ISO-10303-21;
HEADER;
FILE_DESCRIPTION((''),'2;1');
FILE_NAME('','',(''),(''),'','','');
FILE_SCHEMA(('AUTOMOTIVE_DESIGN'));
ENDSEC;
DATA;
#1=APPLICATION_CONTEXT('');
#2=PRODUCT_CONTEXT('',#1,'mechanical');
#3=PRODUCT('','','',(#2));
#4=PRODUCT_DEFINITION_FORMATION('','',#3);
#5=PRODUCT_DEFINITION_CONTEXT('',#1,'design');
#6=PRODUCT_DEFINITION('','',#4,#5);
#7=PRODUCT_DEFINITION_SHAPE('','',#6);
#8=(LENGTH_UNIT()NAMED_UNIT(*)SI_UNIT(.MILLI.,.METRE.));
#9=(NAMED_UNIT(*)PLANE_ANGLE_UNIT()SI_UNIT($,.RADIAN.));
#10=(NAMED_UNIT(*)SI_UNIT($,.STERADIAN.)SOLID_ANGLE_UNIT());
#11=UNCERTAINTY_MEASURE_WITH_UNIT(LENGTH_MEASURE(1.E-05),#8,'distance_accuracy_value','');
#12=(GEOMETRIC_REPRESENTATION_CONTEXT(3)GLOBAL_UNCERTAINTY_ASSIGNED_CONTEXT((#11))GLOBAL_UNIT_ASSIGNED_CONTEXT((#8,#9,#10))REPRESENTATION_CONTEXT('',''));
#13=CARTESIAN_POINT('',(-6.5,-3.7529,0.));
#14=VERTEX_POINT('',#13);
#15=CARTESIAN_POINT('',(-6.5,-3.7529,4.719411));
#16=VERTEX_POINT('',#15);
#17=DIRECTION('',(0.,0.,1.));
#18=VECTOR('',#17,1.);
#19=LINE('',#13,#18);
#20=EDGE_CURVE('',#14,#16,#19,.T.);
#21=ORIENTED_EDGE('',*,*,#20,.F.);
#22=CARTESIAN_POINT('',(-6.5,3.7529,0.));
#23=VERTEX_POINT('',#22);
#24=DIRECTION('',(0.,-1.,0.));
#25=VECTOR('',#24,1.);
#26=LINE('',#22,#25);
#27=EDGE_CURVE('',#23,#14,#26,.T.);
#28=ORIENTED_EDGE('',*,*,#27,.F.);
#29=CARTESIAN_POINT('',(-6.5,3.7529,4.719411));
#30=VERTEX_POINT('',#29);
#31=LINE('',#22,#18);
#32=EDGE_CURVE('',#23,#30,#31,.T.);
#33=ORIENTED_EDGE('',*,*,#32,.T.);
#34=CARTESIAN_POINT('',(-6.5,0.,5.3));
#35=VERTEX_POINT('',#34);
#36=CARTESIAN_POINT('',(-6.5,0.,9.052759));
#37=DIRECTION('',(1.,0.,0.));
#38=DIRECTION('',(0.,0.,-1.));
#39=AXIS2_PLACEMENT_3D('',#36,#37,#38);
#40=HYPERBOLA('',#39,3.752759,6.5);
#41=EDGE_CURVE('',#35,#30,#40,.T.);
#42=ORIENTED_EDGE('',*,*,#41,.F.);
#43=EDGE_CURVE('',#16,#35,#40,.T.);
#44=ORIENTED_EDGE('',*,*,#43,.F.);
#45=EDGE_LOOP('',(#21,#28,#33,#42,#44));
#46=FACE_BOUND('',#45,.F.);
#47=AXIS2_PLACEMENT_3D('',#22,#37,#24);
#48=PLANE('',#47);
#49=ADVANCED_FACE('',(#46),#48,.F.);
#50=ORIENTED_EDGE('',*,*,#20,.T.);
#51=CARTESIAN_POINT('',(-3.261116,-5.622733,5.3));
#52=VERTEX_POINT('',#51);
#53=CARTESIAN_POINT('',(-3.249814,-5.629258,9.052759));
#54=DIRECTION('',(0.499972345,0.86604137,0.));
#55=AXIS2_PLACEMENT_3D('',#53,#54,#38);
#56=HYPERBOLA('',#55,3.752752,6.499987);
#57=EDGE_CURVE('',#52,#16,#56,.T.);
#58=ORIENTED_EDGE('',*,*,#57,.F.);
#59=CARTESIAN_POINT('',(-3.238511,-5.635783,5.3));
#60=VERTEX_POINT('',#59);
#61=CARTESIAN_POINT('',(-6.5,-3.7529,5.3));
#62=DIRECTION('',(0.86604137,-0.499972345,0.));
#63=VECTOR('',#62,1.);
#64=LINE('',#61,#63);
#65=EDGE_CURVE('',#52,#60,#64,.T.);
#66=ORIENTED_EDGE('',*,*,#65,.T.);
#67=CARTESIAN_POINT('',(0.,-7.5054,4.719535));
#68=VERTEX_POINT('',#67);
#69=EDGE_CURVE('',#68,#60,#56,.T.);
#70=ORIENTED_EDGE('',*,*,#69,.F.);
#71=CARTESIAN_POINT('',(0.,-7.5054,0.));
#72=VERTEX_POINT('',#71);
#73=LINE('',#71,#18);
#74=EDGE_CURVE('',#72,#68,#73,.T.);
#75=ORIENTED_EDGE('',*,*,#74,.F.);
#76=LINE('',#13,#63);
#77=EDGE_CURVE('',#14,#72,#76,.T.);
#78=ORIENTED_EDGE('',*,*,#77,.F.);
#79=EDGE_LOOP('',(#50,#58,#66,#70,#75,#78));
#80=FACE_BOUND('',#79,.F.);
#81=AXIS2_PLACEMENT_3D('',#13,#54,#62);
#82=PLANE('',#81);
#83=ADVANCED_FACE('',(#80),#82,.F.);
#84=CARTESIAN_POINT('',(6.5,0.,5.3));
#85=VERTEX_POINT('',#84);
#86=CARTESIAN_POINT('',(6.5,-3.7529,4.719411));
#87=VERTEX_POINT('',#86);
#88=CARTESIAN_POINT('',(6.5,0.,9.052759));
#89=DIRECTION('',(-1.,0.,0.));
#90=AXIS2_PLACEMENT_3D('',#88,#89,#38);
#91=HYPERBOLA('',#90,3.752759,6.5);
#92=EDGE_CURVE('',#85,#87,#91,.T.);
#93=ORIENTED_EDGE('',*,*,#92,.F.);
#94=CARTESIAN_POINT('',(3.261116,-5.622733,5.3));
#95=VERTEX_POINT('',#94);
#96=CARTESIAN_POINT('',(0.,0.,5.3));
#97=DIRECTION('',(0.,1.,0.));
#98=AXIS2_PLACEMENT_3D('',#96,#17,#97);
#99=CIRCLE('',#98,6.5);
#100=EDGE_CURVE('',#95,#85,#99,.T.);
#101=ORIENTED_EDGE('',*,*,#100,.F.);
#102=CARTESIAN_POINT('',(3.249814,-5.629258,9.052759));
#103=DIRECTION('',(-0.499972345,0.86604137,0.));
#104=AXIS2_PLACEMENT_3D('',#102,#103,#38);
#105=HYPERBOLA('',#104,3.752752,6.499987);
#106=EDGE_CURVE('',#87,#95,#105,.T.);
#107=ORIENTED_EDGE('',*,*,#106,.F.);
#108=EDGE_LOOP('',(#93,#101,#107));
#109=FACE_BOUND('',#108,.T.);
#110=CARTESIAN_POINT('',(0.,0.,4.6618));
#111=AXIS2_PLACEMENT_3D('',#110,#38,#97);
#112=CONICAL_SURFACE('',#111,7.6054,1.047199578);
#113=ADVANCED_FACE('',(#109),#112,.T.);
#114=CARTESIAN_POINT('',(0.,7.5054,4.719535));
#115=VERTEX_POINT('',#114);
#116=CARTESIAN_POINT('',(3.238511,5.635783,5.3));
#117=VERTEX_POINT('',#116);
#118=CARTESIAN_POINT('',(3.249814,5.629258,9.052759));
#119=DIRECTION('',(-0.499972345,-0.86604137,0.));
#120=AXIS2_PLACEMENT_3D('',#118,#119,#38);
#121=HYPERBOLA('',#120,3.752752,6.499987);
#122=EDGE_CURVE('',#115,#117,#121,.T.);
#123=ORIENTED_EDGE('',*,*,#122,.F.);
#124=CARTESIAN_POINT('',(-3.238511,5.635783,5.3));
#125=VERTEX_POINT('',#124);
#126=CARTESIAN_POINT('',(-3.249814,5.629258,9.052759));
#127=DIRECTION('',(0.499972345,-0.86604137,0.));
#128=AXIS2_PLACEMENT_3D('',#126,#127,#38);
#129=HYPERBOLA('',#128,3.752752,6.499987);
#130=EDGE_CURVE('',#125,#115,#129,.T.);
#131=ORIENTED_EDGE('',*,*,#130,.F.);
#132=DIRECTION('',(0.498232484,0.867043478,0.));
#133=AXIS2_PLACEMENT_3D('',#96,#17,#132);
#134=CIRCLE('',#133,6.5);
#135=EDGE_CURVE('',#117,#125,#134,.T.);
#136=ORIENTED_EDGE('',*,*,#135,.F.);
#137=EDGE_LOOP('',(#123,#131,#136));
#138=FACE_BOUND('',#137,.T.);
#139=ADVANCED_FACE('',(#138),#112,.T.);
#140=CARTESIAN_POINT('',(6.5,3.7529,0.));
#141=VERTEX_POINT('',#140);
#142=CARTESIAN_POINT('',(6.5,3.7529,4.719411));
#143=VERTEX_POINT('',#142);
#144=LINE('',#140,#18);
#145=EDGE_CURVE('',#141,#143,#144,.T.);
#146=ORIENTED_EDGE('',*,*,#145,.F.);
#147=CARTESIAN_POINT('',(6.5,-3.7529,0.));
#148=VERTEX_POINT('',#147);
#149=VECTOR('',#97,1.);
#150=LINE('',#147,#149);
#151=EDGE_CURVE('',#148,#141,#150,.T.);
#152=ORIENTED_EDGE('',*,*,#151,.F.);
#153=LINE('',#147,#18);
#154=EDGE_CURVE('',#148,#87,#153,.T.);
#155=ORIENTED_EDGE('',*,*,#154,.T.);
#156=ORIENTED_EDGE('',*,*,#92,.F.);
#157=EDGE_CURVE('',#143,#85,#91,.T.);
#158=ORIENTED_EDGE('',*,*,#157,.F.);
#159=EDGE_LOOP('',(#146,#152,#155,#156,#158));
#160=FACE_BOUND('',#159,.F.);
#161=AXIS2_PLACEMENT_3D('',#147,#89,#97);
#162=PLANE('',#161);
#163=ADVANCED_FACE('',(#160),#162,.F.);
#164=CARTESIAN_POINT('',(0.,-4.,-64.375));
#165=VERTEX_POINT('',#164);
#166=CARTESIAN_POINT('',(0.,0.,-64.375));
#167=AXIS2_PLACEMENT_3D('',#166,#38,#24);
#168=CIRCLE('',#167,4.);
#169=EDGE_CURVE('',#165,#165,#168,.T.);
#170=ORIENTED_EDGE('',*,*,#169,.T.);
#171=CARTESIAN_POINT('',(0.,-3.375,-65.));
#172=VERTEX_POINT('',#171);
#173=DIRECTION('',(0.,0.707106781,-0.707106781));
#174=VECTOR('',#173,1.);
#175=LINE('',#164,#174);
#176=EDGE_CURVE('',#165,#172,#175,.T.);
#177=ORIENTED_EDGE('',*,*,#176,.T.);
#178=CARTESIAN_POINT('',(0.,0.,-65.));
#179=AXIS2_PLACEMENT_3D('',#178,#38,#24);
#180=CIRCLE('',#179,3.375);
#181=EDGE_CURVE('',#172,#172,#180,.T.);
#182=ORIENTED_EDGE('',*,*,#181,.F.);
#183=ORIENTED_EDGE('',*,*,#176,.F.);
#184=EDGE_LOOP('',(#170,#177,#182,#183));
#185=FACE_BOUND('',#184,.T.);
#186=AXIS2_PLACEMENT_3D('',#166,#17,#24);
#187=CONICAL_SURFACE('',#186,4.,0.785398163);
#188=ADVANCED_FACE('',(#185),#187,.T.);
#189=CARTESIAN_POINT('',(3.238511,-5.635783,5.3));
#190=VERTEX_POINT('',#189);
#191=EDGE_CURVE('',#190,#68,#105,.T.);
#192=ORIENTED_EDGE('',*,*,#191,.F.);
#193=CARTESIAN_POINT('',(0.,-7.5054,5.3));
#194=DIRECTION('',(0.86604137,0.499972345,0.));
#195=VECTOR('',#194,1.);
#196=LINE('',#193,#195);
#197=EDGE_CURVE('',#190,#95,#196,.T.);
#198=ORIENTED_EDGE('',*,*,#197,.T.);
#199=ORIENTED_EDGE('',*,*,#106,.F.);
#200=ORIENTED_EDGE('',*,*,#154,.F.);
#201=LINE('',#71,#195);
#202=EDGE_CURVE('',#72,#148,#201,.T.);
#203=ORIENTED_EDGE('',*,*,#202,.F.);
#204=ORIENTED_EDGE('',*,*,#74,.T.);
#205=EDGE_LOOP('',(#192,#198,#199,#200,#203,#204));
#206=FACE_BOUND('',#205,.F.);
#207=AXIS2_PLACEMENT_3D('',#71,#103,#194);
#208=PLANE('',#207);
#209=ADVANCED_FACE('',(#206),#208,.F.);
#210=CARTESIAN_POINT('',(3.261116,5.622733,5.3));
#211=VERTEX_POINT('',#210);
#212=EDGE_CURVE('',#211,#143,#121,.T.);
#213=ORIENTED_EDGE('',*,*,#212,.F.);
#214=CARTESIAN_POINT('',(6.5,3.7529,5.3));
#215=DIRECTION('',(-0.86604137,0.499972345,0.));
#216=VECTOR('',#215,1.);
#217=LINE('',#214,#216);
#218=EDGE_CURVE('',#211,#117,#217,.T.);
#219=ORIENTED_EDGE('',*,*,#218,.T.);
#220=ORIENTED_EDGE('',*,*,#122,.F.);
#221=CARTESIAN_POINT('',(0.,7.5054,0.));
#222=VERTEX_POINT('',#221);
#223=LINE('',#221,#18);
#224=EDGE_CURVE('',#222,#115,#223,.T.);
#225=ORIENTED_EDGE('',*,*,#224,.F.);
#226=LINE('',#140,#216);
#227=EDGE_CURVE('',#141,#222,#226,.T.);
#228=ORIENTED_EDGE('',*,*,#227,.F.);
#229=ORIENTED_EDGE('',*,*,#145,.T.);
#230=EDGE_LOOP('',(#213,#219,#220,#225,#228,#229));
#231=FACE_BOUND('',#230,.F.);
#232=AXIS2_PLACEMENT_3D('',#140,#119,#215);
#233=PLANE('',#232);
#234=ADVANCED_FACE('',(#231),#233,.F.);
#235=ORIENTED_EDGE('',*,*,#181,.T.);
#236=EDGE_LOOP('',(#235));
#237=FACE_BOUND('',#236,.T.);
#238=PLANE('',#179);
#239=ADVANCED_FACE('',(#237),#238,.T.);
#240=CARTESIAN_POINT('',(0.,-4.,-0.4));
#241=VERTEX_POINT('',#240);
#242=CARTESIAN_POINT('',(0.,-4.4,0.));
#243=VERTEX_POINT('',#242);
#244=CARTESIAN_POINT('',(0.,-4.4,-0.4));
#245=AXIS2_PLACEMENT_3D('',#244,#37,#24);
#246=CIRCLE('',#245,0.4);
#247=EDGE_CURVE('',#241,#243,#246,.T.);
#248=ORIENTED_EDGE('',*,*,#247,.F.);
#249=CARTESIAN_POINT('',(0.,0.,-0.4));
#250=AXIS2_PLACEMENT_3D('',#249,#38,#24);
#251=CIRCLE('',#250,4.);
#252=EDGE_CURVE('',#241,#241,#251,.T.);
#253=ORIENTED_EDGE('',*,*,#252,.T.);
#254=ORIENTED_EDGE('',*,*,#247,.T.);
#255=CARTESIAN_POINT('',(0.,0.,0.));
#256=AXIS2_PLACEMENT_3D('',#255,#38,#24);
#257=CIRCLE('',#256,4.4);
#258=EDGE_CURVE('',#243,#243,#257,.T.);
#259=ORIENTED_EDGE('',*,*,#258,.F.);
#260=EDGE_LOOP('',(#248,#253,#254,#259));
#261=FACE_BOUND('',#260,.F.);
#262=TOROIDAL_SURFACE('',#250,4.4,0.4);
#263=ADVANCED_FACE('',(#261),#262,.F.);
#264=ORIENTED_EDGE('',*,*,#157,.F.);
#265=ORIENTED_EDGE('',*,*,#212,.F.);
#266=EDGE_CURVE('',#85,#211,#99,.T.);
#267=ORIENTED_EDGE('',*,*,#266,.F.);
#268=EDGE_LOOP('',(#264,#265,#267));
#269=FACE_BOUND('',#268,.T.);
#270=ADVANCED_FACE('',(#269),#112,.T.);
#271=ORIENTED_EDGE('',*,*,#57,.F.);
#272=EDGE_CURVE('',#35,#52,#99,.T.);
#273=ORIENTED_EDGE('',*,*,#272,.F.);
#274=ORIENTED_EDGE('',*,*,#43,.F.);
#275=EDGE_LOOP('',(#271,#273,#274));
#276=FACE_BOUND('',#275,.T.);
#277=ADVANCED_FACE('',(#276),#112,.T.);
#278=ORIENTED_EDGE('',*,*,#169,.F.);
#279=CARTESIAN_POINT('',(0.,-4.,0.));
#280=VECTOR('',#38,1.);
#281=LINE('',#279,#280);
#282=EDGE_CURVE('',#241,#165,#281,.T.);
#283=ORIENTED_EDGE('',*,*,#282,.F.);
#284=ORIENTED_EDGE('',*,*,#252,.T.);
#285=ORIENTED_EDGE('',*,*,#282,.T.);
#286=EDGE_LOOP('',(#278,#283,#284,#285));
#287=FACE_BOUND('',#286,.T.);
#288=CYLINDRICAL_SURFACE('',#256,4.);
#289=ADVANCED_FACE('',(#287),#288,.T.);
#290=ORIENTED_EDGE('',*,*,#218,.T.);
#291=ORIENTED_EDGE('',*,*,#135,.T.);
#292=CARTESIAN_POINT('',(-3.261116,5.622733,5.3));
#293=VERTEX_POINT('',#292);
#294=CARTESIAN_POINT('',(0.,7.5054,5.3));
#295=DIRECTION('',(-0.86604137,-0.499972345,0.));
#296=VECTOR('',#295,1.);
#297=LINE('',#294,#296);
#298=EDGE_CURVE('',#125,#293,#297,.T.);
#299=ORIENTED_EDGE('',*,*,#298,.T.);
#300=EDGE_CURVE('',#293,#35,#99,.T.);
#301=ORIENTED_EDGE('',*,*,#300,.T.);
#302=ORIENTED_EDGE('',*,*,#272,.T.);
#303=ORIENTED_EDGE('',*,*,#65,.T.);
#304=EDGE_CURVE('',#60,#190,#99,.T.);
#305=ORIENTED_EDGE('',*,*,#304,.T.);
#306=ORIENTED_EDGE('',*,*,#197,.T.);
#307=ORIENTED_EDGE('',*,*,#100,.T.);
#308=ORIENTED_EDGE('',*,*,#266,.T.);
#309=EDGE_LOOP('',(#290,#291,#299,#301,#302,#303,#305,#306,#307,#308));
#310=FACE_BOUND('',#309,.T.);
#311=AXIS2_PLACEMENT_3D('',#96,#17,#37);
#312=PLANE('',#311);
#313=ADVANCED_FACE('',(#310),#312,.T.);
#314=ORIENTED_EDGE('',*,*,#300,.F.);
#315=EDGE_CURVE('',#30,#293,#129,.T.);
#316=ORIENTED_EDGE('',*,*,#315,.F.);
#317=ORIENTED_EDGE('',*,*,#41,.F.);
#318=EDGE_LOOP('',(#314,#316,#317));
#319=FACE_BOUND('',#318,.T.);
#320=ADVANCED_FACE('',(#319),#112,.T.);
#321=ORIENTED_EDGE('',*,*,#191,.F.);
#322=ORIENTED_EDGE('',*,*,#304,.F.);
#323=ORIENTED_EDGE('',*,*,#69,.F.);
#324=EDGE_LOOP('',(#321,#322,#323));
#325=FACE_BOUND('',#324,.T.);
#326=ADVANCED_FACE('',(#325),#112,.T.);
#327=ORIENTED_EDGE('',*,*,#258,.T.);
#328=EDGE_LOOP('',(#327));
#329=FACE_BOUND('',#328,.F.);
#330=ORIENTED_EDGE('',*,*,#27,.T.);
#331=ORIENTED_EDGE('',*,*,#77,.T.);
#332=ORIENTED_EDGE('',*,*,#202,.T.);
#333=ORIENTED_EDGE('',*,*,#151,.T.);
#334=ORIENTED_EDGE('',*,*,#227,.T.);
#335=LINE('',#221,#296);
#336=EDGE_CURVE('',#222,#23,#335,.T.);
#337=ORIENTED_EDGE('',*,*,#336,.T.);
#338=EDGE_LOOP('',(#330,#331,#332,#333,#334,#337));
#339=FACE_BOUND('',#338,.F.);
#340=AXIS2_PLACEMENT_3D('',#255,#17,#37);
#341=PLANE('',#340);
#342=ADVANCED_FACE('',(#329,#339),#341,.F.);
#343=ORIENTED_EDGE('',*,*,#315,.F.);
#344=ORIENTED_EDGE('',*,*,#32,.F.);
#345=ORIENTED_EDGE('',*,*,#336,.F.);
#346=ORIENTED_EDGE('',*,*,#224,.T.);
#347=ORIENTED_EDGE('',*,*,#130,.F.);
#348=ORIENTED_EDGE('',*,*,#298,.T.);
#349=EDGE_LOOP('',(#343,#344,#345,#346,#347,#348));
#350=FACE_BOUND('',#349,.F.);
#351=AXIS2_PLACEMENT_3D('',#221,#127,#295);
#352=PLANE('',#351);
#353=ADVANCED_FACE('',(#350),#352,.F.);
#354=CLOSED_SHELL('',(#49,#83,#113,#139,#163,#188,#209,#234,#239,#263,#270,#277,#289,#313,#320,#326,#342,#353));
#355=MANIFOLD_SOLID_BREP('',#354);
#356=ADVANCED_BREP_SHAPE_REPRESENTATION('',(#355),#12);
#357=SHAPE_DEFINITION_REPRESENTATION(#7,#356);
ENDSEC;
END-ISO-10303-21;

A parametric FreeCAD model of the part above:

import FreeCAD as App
import Part
import Sketcher
from FreeCAD import Vector
Q = App.Units.Quantity


def edges_at(feature, points):
    """Names of the edges that pass closest to the given points."""
    edges = feature.Shape.Edges
    near = lambda p: min(range(len(edges)), key=lambda i: edges[i].distToShape(Part.Vertex(*p))[0])
    return sorted({f"Edge{near(p) + 1}" for p in points})


def add_polygon(sketch, points):
    """Adds a closed chain of lines whose ends are joined by coincident constraints."""
    first, n = sketch.GeometryCount, len(points)
    for a, b in zip(points, points[1:] + points[:1]):
        sketch.addGeometry(Part.LineSegment(App.Vector(*a, 0), App.Vector(*b, 0)), False)
    for i in range(n):
        sketch.addConstraint(Sketcher.Constraint("Coincident", first + i, 2, first + (i + 1) % n, 1))

doc = App.newDocument("Part")
params = doc.addObject("Spreadsheet::Sheet", "Params")
for row, (alias, value) in enumerate([
    ("pad1_length", "5.3 mm"),
    ("groove_angle", "360 deg"),
    ("sketch3_width", "4 mm"),
    ("sketch3_height", "65 mm"),
    ("revolution_angle", "360 deg"),
    ("chamfer_size", "0.625 mm"),
    ("fillet_radius", "0.4 mm"),
], start=1):
    params.set(f"A{row}", alias)
    params.set(f"B{row}", "=" + value)
    params.setAlias(f"B{row}", alias)

body = doc.addObject("PartDesign::Body", "Body")

# Sketch on XY plane
sketch1 = doc.addObject("Sketcher::SketchObject", "Sketch")
body.addObject(sketch1)
sketch1.AttachmentSupport = (doc.XY_Plane, [""])
sketch1.MapMode = "FlatFace"
add_polygon(sketch1, [(0, 7.5054), (-6.5, 3.7529), (-6.5, -3.7529), (0, -7.5054), (6.5, -3.7529), (6.5, 3.7529)])  # lines 0-5
sketch1.addConstraint([
    Sketcher.Constraint("Vertical", 1),
    Sketcher.Constraint("Vertical", 4),
    Sketcher.Constraint("Symmetric", 0, 2, 3, 2, -1, 1),
    Sketcher.Constraint("Symmetric", 2, 2, 5, 2, -1, 1),
    Sketcher.Constraint("PointOnObject", 2, 2, -2),
    Sketcher.Constraint("Parallel", 2, 5),
    Sketcher.Constraint("Horizontal", 1, 2, 3, 2),
    Sketcher.Constraint("DistanceX", 1, 2, 3, 2, Q("13 mm")),
    Sketcher.Constraint("DistanceY", 1, 2, 1, 1, Q("7.5058 mm")),
    Sketcher.Constraint("Distance", 0, Q("7.5054 mm")),
])
pad1 = doc.addObject("PartDesign::Pad", "Pad")
body.addObject(pad1)
pad1.Profile = sketch1
pad1.setExpression("Length", "Params.pad1_length")

# Sketch on YZ plane
sketch2 = doc.addObject("Sketcher::SketchObject", "Sketch001")
body.addObject(sketch2)
sketch2.AttachmentSupport = (doc.YZ_Plane, [""])
sketch2.MapMode = "FlatFace"
add_polygon(sketch2, [(6.5, 5.3), (7.6054, 4.6618), (7.6054, 5.3)])  # lines 0-2
sketch2.addConstraint([
    Sketcher.Constraint("Vertical", 1),
    Sketcher.Constraint("Horizontal", 2),
    Sketcher.Constraint("DistanceX", -1, 1, 2, 2, Q("6.5 mm")),
    Sketcher.Constraint("Angle", 0, Q("-30 deg")),
    Sketcher.Constraint("DistanceY", -1, 1, 1, 2, Q("5.3 mm")),
    Sketcher.Constraint("DistanceX", 2, 2, 2, 1, Q("1.1054 mm")),
])
groove = doc.addObject("PartDesign::Groove", "Groove")
body.addObject(groove)
groove.Profile = sketch2
groove.ReferenceAxis = (sketch2, ["V_Axis"])
groove.setExpression("Angle", "Params.groove_angle")

# Sketch on YZ plane
sketch3 = doc.addObject("Sketcher::SketchObject", "Sketch002")
body.addObject(sketch3)
sketch3.AttachmentSupport = (doc.YZ_Plane, [""])
sketch3.MapMode = "FlatFace"
add_polygon(sketch3, [(-4, -65), (0, -65), (0, 0), (-4, 0)])  # lines 0-3
sketch3.addConstraint([
    Sketcher.Constraint("Horizontal", 0),
    Sketcher.Constraint("Vertical", 1),
    Sketcher.Constraint("Horizontal", 2),
    Sketcher.Constraint("Vertical", 3),
    Sketcher.Constraint("Coincident", 1, 2, -1, 1),
    Sketcher.Constraint("DistanceX", 0, 1, 0, 2, Q("4 mm")),
    Sketcher.Constraint("DistanceY", 1, 1, 1, 2, Q("65 mm")),
])
sketch3.setExpression("Constraints[9]", "Params.sketch3_width")
sketch3.setExpression("Constraints[10]", "Params.sketch3_height")
revolution = doc.addObject("PartDesign::Revolution", "Revolution")
body.addObject(revolution)
revolution.Profile = sketch3
revolution.ReferenceAxis = (sketch3, ["V_Axis"])
revolution.setExpression("Angle", "Params.revolution_angle")
doc.recompute()

chamfer = doc.addObject("PartDesign::Chamfer", "Chamfer")
body.addObject(chamfer)
chamfer.Base = (revolution, edges_at(revolution, [(0, 4, -65)]))
chamfer.setExpression("Size", "Params.chamfer_size")
doc.recompute()

fillet = doc.addObject("PartDesign::Fillet", "Fillet")
body.addObject(fillet)
fillet.Base = (chamfer, edges_at(chamfer, [(0, 4, 0)]))
fillet.setExpression("Radius", "Params.fillet_radius")

doc.recompute()
